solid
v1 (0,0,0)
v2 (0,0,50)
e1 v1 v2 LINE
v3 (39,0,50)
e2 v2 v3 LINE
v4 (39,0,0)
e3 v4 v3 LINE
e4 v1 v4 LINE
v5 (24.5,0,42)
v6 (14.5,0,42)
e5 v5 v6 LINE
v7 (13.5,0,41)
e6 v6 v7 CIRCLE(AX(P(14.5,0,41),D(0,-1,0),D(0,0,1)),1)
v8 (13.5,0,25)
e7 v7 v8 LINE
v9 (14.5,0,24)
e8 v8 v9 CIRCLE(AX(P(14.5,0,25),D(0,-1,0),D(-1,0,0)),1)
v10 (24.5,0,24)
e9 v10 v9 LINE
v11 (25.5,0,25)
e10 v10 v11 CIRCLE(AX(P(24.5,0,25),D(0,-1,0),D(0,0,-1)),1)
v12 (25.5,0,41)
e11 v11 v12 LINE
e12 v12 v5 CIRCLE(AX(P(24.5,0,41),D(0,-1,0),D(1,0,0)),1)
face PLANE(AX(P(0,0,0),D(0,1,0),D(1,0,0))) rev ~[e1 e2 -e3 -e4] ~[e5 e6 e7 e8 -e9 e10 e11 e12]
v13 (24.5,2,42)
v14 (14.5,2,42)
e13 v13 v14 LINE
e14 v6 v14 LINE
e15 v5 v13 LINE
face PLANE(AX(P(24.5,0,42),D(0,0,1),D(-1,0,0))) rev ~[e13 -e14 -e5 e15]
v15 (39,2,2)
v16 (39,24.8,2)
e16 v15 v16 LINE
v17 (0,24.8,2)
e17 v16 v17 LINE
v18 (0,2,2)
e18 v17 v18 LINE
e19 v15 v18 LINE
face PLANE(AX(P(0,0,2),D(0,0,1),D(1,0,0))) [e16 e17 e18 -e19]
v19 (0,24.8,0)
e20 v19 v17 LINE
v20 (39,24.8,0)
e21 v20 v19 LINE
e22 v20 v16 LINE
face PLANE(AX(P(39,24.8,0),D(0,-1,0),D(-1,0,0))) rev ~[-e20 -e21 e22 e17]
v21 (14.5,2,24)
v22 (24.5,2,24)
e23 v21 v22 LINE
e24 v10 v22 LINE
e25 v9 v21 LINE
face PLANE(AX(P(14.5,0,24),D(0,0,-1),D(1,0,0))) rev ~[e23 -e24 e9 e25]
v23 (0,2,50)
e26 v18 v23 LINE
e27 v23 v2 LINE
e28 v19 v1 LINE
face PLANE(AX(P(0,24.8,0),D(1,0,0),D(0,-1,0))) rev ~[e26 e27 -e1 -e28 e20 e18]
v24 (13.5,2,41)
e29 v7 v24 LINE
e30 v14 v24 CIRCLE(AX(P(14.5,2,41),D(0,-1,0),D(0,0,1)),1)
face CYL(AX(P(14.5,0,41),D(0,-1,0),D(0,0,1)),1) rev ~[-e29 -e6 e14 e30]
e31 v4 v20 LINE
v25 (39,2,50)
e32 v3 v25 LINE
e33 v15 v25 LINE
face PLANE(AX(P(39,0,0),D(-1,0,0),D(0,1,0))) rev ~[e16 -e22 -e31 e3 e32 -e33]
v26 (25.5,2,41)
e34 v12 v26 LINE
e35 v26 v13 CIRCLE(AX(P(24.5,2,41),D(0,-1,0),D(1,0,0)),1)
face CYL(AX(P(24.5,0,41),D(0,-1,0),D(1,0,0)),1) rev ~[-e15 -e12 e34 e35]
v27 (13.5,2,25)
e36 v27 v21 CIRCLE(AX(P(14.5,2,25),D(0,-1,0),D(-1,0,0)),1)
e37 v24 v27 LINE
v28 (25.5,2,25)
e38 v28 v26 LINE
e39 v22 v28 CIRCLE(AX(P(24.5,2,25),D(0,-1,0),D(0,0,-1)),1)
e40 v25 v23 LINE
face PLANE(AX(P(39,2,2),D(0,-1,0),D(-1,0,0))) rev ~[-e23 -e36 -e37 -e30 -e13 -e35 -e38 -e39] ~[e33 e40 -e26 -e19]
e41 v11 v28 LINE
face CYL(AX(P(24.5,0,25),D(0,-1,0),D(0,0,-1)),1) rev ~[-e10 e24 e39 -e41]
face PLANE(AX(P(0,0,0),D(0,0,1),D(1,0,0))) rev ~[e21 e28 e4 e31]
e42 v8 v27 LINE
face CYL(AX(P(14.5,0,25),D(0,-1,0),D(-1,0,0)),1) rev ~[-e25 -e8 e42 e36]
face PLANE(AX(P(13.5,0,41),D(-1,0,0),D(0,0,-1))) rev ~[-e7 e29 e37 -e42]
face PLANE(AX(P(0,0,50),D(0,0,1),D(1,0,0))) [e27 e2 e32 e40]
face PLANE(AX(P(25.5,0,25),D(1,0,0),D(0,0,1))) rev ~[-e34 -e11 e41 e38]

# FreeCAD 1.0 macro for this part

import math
import FreeCAD as App
import Part
import Sketcher
from FreeCAD import Vector
Q = App.Units.Quantity


def add_polygon(sketch, points):
    """Adds a closed chain of lines whose ends are joined by coincident constraints."""
    first, n = sketch.GeometryCount, len(points)
    for a, b in zip(points, points[1:] + points[:1]):
        sketch.addGeometry(Part.LineSegment(App.Vector(*a, 0), App.Vector(*b, 0)), False)
    for i in range(n):
        sketch.addConstraint(Sketcher.Constraint("Coincident", first + i, 2, first + (i + 1) % n, 1))

doc = App.newDocument("Part")
params = doc.addObject("Spreadsheet::Sheet", "Params")
for row, (alias, value) in enumerate([
    ("sketch1_width", "39 mm"),
    ("sketch1_height", "24.8 mm"),
    ("pad1_length", "2 mm"),
    ("sketch2_width", "39 mm"),
    ("sketch2_height", "2 mm"),
    ("pad2_length", "48 mm"),
    ("sketch3_radius", "1 mm"),
    ("sketch3_height", "16 mm"),
    ("pocket1_length", "48 mm"),
], start=1):
    params.set(f"A{row}", alias)
    params.set(f"B{row}", "=" + value)
    params.setAlias(f"B{row}", alias)

body = doc.addObject("PartDesign::Body", "Body")

# Sketch on XY plane
sketch1 = body.newObject("Sketcher::SketchObject", "Sketch")
sketch1.AttachmentSupport = (doc.getObject("XY_Plane"), [""])
sketch1.MapMode = "FlatFace"
add_polygon(sketch1, [(0, 25), (0, 0), (39, 0), (39, 25)])  # lines 0-3
sketch1.addConstraint(Sketcher.Constraint("Vertical", 0))
sketch1.addConstraint(Sketcher.Constraint("Horizontal", 1))
sketch1.addConstraint(Sketcher.Constraint("Vertical", 2))
sketch1.addConstraint(Sketcher.Constraint("Horizontal", 3))
sketch1.addConstraint(Sketcher.Constraint("Coincident", 0, 2, -1, 1))
sketch1.addConstraint(Sketcher.Constraint("DistanceX", 1, 1, 1, 2, Q("39 mm")))
sketch1.addConstraint(Sketcher.Constraint("DistanceY", 0, 2, 0, 1, Q("24.8 mm")))
sketch1.setExpression("Constraints[9]", "Params.sketch1_width")
sketch1.setExpression("Constraints[10]", "Params.sketch1_height")
pad1 = body.newObject("PartDesign::Pad", "Pad")
pad1.Profile = sketch1
pad1.setExpression("Length", "Params.pad1_length")

# Sketch on XY plane
sketch2 = body.newObject("Sketcher::SketchObject", "Sketch001")
sketch2.AttachmentSupport = (doc.getObject("XY_Plane"), [""])
sketch2.MapMode = "FlatFace"
sketch2.AttachmentOffset = App.Placement(Vector(0, 0, 2), App.Rotation())
add_polygon(sketch2, [(39, 2), (0, 2), (0, 0), (39, 0)])  # lines 0-3
sketch2.addConstraint(Sketcher.Constraint("Horizontal", 0))
sketch2.addConstraint(Sketcher.Constraint("Vertical", 1))
sketch2.addConstraint(Sketcher.Constraint("Horizontal", 2))
sketch2.addConstraint(Sketcher.Constraint("Vertical", 3))
sketch2.addConstraint(Sketcher.Constraint("Coincident", 1, 2, -1, 1))
sketch2.addConstraint(Sketcher.Constraint("DistanceX", 0, 2, 0, 1, Q("39 mm")))
sketch2.addConstraint(Sketcher.Constraint("DistanceY", 1, 2, 1, 1, Q("2 mm")))
sketch2.setExpression("Constraints[9]", "Params.sketch2_width")
sketch2.setExpression("Constraints[10]", "Params.sketch2_height")
pad2 = body.newObject("PartDesign::Pad", "Pad001")
pad2.Profile = sketch2
pad2.setExpression("Length", "Params.pad2_length")

# Sketch on XZ plane
sketch3 = body.newObject("Sketcher::SketchObject", "Sketch002")
sketch3.AttachmentSupport = (doc.getObject("XZ_Plane"), [""])
sketch3.MapMode = "FlatFace"
sketch3.addGeometry(Part.LineSegment(Vector(14.5, 24, 0), Vector(24.5, 24, 0)), False)
sketch3.addGeometry(Part.ArcOfCircle(Part.Circle(Vector(24.5, 25, 0), Vector(0, 0, 1), 1), math.radians(-90), math.radians(0)), False)
sketch3.addGeometry(Part.LineSegment(Vector(25.5, 25, 0), Vector(25.5, 41, 0)), False)
sketch3.addGeometry(Part.ArcOfCircle(Part.Circle(Vector(24.5, 41, 0), Vector(0, 0, 1), 1), math.radians(0), math.radians(90)), False)
sketch3.addGeometry(Part.LineSegment(Vector(24.5, 42, 0), Vector(14.5, 42, 0)), False)
sketch3.addGeometry(Part.ArcOfCircle(Part.Circle(Vector(14.5, 41, 0), Vector(0, 0, 1), 1), math.radians(90), math.radians(180)), False)
sketch3.addGeometry(Part.LineSegment(Vector(13.5, 41, 0), Vector(13.5, 25, 0)), False)
sketch3.addGeometry(Part.ArcOfCircle(Part.Circle(Vector(14.5, 25, 0), Vector(0, 0, 1), 1), math.radians(180), math.radians(270)), False)
sketch3.addConstraint(Sketcher.Constraint("Tangent", 0, 2, 1, 1))
sketch3.addConstraint(Sketcher.Constraint("Tangent", 1, 2, 2, 1))
sketch3.addConstraint(Sketcher.Constraint("Tangent", 2, 2, 3, 1))
sketch3.addConstraint(Sketcher.Constraint("Tangent", 3, 2, 4, 1))
sketch3.addConstraint(Sketcher.Constraint("Tangent", 4, 2, 5, 1))
sketch3.addConstraint(Sketcher.Constraint("Tangent", 5, 2, 6, 1))
sketch3.addConstraint(Sketcher.Constraint("Tangent", 6, 2, 7, 1))
sketch3.addConstraint(Sketcher.Constraint("Tangent", 7, 2, 0, 1))
sketch3.addConstraint(Sketcher.Constraint("Horizontal", 0))
sketch3.addConstraint(Sketcher.Constraint("Vertical", 2))
sketch3.addConstraint(Sketcher.Constraint("Horizontal", 4))
sketch3.addConstraint(Sketcher.Constraint("Vertical", 6))
sketch3.addConstraint(Sketcher.Constraint("Equal", 1, 3))
sketch3.addConstraint(Sketcher.Constraint("Equal", 3, 5))
sketch3.addConstraint(Sketcher.Constraint("Equal", 5, 7))
sketch3.addConstraint(Sketcher.Constraint("Radius", 1, Q("1 mm")))
sketch3.addConstraint(Sketcher.Constraint("DistanceX", 5, 2, 2, 2, Q("12 mm")))
sketch3.addConstraint(Sketcher.Constraint("DistanceY", 2, 1, 2, 2, Q("16 mm")))
sketch3.addConstraint(Sketcher.Constraint("DistanceY", -1, 1, 1, 3, Q("25 mm")))
sketch3.addConstraint(Sketcher.Constraint("DistanceX", -1, 1, 1, 3, Q("24.5 mm")))
sketch3.setExpression("Constraints[15]", "Params.sketch3_radius")
sketch3.setExpression("Constraints[17]", "Params.sketch3_height")
pocket1 = body.newObject("PartDesign::Pocket", "Pocket")
pocket1.Profile = sketch3
pocket1.setExpression("Length", "Params.pocket1_length")

doc.recompute()
